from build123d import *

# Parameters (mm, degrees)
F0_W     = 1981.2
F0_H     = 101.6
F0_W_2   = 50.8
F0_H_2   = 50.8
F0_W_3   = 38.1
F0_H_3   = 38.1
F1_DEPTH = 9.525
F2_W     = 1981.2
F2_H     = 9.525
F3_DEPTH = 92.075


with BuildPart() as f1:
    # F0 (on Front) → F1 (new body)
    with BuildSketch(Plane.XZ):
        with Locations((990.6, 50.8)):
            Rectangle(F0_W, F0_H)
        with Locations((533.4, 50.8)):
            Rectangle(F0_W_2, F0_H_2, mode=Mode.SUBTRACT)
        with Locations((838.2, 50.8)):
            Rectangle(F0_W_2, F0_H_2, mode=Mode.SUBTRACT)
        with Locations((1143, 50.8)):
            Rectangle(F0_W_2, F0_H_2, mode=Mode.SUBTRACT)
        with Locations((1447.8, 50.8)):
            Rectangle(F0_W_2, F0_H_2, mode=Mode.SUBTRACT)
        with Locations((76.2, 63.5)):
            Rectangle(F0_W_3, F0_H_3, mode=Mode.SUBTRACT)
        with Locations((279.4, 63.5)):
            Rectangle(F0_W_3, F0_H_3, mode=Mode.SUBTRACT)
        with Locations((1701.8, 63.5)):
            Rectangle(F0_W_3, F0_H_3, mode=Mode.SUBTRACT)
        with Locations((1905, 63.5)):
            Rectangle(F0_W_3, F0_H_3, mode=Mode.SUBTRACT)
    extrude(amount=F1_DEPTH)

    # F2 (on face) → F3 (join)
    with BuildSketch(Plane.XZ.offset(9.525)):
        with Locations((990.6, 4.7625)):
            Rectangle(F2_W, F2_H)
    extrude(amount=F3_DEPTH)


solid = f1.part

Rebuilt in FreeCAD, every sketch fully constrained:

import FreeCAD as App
import Part
import Sketcher
Q = App.Units.Quantity


def add_polygon(sketch, points):
    """Adds a closed chain of lines whose ends are joined by coincident constraints."""
    first, n = sketch.GeometryCount, len(points)
    for a, b in zip(points, points[1:] + points[:1]):
        sketch.addGeometry(Part.LineSegment(App.Vector(*a, 0), App.Vector(*b, 0)), False)
    for i in range(n):
        sketch.addConstraint(Sketcher.Constraint("Coincident", first + i, 2, first + (i + 1) % n, 1))

doc = App.newDocument("Part")
body = doc.addObject("PartDesign::Body", "Body")

sketch1 = body.newObject("Sketcher::SketchObject", "Sketch")
sketch1.AttachmentSupport = (doc.getObject("XZ_Plane"), [""])
sketch1.MapMode = "FlatFace"
add_polygon(sketch1, [(0, 102), (0, 0), (1981, 0), (1981, 102)])
add_polygon(sketch1, [(559, 25), (508, 25), (508, 76), (559, 76)])
add_polygon(sketch1, [(864, 25), (813, 25), (813, 76), (864, 76)])
add_polygon(sketch1, [(1168, 25), (1118, 25), (1118, 76), (1168, 76)])
add_polygon(sketch1, [(1473, 25), (1422, 25), (1422, 76), (1473, 76)])
add_polygon(sketch1, [(95, 44), (57, 44), (57, 83), (95, 83)])
add_polygon(sketch1, [(298, 44), (260, 44), (260, 83), (298, 83)])
add_polygon(sketch1, [(1721, 44), (1683, 44), (1683, 83), (1721, 83)])
add_polygon(sketch1, [(1924, 44), (1886, 44), (1886, 83), (1924, 83)])
sketch1.addConstraint(Sketcher.Constraint("Vertical", 0))
sketch1.addConstraint(Sketcher.Constraint("Horizontal", 1))
sketch1.addConstraint(Sketcher.Constraint("Vertical", 2))
sketch1.addConstraint(Sketcher.Constraint("Horizontal", 3))
sketch1.addConstraint(Sketcher.Constraint("Horizontal", 4))
sketch1.addConstraint(Sketcher.Constraint("Vertical", 5))
sketch1.addConstraint(Sketcher.Constraint("Horizontal", 6))
sketch1.addConstraint(Sketcher.Constraint("Vertical", 7))
sketch1.addConstraint(Sketcher.Constraint("Horizontal", 8))
sketch1.addConstraint(Sketcher.Constraint("Vertical", 9))
sketch1.addConstraint(Sketcher.Constraint("Horizontal", 10))
sketch1.addConstraint(Sketcher.Constraint("Vertical", 11))
sketch1.addConstraint(Sketcher.Constraint("Horizontal", 12))
sketch1.addConstraint(Sketcher.Constraint("Vertical", 13))
sketch1.addConstraint(Sketcher.Constraint("Horizontal", 14))
sketch1.addConstraint(Sketcher.Constraint("Vertical", 15))
sketch1.addConstraint(Sketcher.Constraint("Horizontal", 16))
sketch1.addConstraint(Sketcher.Constraint("Vertical", 17))
sketch1.addConstraint(Sketcher.Constraint("Horizontal", 18))
sketch1.addConstraint(Sketcher.Constraint("Vertical", 19))
sketch1.addConstraint(Sketcher.Constraint("Horizontal", 20))
sketch1.addConstraint(Sketcher.Constraint("Vertical", 21))
sketch1.addConstraint(Sketcher.Constraint("Horizontal", 22))
sketch1.addConstraint(Sketcher.Constraint("Vertical", 23))
sketch1.addConstraint(Sketcher.Constraint("Horizontal", 24))
sketch1.addConstraint(Sketcher.Constraint("Vertical", 25))
sketch1.addConstraint(Sketcher.Constraint("Horizontal", 26))
sketch1.addConstraint(Sketcher.Constraint("Vertical", 27))
sketch1.addConstraint(Sketcher.Constraint("Horizontal", 28))
sketch1.addConstraint(Sketcher.Constraint("Vertical", 29))
sketch1.addConstraint(Sketcher.Constraint("Horizontal", 30))
sketch1.addConstraint(Sketcher.Constraint("Vertical", 31))
sketch1.addConstraint(Sketcher.Constraint("Horizontal", 32))
sketch1.addConstraint(Sketcher.Constraint("Vertical", 33))
sketch1.addConstraint(Sketcher.Constraint("Horizontal", 34))
sketch1.addConstraint(Sketcher.Constraint("Vertical", 35))
sketch1.addConstraint(Sketcher.Constraint("Coincident", 0, 2, -1, 1))
sketch1.addConstraint(Sketcher.Constraint("Horizontal", 7, 2, 8, 2))
sketch1.addConstraint(Sketcher.Constraint("Horizontal", 6, 2, 9, 2))
sketch1.addConstraint(Sketcher.Constraint("Horizontal", 11, 2, 12, 2))
sketch1.addConstraint(Sketcher.Constraint("Horizontal", 10, 2, 13, 2))
sketch1.addConstraint(Sketcher.Constraint("Horizontal", 15, 2, 16, 2))
sketch1.addConstraint(Sketcher.Constraint("Horizontal", 14, 2, 17, 2))
sketch1.addConstraint(Sketcher.Constraint("Horizontal", 23, 2, 24, 2))
sketch1.addConstraint(Sketcher.Constraint("Horizontal", 22, 2, 25, 2))
sketch1.addConstraint(Sketcher.Constraint("Horizontal", 27, 2, 28, 2))
sketch1.addConstraint(Sketcher.Constraint("Horizontal", 26, 2, 29, 2))
sketch1.addConstraint(Sketcher.Constraint("Horizontal", 31, 2, 32, 2))
sketch1.addConstraint(Sketcher.Constraint("Horizontal", 30, 2, 33, 2))
sketch1.addConstraint(Sketcher.Constraint("Equal", 6, 8))
sketch1.addConstraint(Sketcher.Constraint("Equal", 10, 12))
sketch1.addConstraint(Sketcher.Constraint("Equal", 14, 16))
sketch1.addConstraint(Sketcher.Constraint("Equal", 22, 24))
sketch1.addConstraint(Sketcher.Constraint("Equal", 26, 28))
sketch1.addConstraint(Sketcher.Constraint("Equal", 30, 32))
sketch1.addConstraint(Sketcher.Constraint("Equal", 18, 5))
sketch1.addConstraint(Sketcher.Constraint("Equal", 34, 21))
sketch1.addConstraint(Sketcher.Constraint("DistanceX", 1, 1, 1, 2, Q("78 in")))
sketch1.addConstraint(Sketcher.Constraint("DistanceX", 4, 2, 4, 1, Q("2 in")))
sketch1.addConstraint(Sketcher.Constraint("DistanceY", 0, 2, 0, 1, Q("4 in")))
sketch1.addConstraint(Sketcher.Constraint("DistanceX", 20, 2, 20, 1, Q("1.5 in")))
sketch1.addConstraint(Sketcher.Constraint("DistanceX", -1, 1, 4, 2, Q("20 in")))
sketch1.addConstraint(Sketcher.Constraint("DistanceY", -1, 1, 4, 2, Q("1 in")))
sketch1.addConstraint(Sketcher.Constraint("DistanceX", -1, 1, 8, 2, Q("32 in")))
sketch1.addConstraint(Sketcher.Constraint("DistanceX", -1, 1, 12, 2, Q("44 in")))
sketch1.addConstraint(Sketcher.Constraint("DistanceX", -1, 1, 16, 2, Q("56 in")))
sketch1.addConstraint(Sketcher.Constraint("DistanceX", 20, 2, 24, 2, Q("8 in")))
sketch1.addConstraint(Sketcher.Constraint("DistanceX", 28, 2, 32, 2, Q("8 in")))
sketch1.addConstraint(Sketcher.Constraint("DistanceX", -1, 1, 20, 2, Q("2.25 in")))
sketch1.addConstraint(Sketcher.Constraint("DistanceY", -1, 1, 20, 2, Q("1.75 in")))
sketch1.addConstraint(Sketcher.Constraint("DistanceX", -1, 1, 28, 2, Q("66.25 in")))
pad1 = body.newObject("PartDesign::Pad", "Pad")
pad1.Profile = sketch1
pad1.Length = Q("0.375 in")

sketch2 = body.newObject("Sketcher::SketchObject", "Sketch001")
sketch2.AttachmentSupport = (doc.getObject("XZ_Plane"), [""])
sketch2.MapMode = "FlatFace"
sketch2.AttachmentOffset = App.Placement(App.Vector(0, 0, 0.375 * 25.4), App.Rotation())
add_polygon(sketch2, [(0, 10), (0, 0), (1981, 0), (1981, 10)])
sketch2.addConstraint(Sketcher.Constraint("Vertical", 0))
sketch2.addConstraint(Sketcher.Constraint("Horizontal", 1))
sketch2.addConstraint(Sketcher.Constraint("Vertical", 2))
sketch2.addConstraint(Sketcher.Constraint("Horizontal", 3))
sketch2.addConstraint(Sketcher.Constraint("Coincident", 0, 2, -1, 1))
sketch2.addConstraint(Sketcher.Constraint("DistanceX", 1, 1, 1, 2, Q("78 in")))
sketch2.addConstraint(Sketcher.Constraint("DistanceY", 0, 2, 0, 1, Q("0.375 in")))
pad2 = body.newObject("PartDesign::Pad", "Pad001")
pad2.Profile = sketch2
pad2.Length = Q("3.625 in")

doc.recompute()
